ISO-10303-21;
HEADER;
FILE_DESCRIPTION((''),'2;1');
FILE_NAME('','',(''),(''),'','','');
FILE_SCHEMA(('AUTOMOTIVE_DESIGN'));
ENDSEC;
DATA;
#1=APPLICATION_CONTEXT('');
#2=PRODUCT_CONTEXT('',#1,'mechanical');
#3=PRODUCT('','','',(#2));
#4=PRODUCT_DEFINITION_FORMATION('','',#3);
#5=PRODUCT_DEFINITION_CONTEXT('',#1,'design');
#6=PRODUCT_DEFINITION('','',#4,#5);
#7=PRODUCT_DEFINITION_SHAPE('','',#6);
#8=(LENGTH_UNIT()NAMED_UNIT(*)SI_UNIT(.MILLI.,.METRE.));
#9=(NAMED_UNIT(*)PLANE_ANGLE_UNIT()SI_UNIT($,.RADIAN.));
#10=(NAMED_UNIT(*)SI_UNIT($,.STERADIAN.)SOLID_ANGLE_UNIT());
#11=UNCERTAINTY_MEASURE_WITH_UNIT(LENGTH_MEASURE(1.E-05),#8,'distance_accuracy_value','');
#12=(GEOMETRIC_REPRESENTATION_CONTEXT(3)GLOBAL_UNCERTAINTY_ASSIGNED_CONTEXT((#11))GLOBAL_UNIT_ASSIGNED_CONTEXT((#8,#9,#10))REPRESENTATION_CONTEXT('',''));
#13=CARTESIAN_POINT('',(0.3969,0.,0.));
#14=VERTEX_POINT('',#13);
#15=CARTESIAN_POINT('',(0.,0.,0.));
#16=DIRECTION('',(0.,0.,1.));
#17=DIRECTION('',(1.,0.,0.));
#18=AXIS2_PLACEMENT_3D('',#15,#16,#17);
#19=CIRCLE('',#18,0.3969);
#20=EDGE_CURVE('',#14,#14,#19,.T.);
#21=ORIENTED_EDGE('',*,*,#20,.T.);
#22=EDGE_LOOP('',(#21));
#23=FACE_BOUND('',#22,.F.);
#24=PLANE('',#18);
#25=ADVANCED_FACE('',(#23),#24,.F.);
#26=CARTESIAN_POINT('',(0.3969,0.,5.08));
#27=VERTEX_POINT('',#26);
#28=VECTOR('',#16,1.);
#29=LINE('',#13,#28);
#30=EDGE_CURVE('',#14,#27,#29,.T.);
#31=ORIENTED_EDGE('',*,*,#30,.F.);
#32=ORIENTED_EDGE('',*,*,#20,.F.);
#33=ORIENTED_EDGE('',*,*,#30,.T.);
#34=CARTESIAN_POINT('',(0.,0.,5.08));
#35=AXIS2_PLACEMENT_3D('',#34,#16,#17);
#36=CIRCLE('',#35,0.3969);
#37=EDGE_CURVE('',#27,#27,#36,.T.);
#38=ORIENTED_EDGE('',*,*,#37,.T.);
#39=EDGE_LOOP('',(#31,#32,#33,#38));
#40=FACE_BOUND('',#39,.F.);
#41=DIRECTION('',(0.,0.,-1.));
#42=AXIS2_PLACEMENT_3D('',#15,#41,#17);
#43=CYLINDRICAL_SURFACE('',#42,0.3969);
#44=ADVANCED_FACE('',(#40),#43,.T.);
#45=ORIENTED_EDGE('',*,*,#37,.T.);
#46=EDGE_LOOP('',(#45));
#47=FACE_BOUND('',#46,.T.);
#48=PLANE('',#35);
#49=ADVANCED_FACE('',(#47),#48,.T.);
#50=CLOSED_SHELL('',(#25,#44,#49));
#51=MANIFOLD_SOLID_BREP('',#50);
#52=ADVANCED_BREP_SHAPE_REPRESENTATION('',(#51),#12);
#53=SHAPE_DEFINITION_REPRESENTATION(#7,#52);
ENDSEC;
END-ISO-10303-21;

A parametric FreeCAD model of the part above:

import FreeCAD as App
import Part
import Sketcher
from FreeCAD import Vector
Q = App.Units.Quantity

doc = App.newDocument("Part")
body = doc.addObject("PartDesign::Body", "Body")

# Sketch on XY plane
sketch1 = body.newObject("Sketcher::SketchObject", "Sketch")
sketch1.AttachmentSupport = (doc.getObject("XY_Plane"), [""])
sketch1.MapMode = "FlatFace"
sketch1.addGeometry(Part.Circle(Vector(0, 0, 0), Vector(0, 0, 1), 0.4), False)
sketch1.addConstraint([
    Sketcher.Constraint("Coincident", 0, 3, -1, 1),
    Sketcher.Constraint("Diameter", 0, Q("0.031252 in")),
])
pad1 = body.newObject("PartDesign::Pad", "Pad")
pad1.Profile = sketch1
pad1.Length = Q("0.2 in")

doc.recompute()
